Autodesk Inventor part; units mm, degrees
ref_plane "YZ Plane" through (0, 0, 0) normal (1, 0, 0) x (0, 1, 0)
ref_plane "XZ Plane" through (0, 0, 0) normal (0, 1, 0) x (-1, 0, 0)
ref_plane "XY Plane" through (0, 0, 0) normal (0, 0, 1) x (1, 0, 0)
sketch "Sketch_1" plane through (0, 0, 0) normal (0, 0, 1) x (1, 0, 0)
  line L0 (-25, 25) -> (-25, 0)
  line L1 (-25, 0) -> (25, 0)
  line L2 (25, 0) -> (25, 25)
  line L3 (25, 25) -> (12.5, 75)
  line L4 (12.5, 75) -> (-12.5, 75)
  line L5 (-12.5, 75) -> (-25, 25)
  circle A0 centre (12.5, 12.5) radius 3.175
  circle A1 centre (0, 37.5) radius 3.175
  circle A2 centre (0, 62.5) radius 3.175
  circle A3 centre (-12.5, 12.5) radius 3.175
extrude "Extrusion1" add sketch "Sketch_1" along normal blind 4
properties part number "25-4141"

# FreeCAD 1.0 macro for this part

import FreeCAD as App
import Part
import Sketcher
from FreeCAD import Vector
Q = App.Units.Quantity

doc = App.newDocument("Part")
body = doc.addObject("PartDesign::Body", "Body")

# Sketch on XY plane
sketch1 = body.newObject("Sketcher::SketchObject", "Sketch")
sketch1.AttachmentSupport = (doc.getObject("XY_Plane"), [""])
sketch1.MapMode = "FlatFace"
sketch1.addGeometry([
    Part.LineSegment(Vector(-12.5, 75, 0), Vector(-25, 25, 0)),  # 0
    Part.LineSegment(Vector(-25, 25, 0), Vector(-25, 0, 0)),  # 1
    Part.LineSegment(Vector(-25, 0, 0), Vector(25, 0, 0)),  # 2
    Part.LineSegment(Vector(25, 0, 0), Vector(25, 25, 0)),  # 3
    Part.LineSegment(Vector(25, 25, 0), Vector(12.5, 75, 0)),  # 4
    Part.LineSegment(Vector(12.5, 75, 0), Vector(-12.5, 75, 0)),  # 5
    Part.Circle(Vector(-12.5, 12.5, 0), Vector(0, 0, 1), 3.2),  # 6
    Part.Circle(Vector(12.5, 12.5, 0), Vector(0, 0, 1), 3.2),  # 7
    Part.Circle(Vector(0, 37.5, 0), Vector(0, 0, 1), 3.2),  # 8
    Part.Circle(Vector(0, 62.5, 0), Vector(0, 0, 1), 3.2),  # 9
], False)
sketch1.addConstraint([
    Sketcher.Constraint("Coincident", 0, 2, 1, 1),
    Sketcher.Constraint("Coincident", 1, 2, 2, 1),
    Sketcher.Constraint("Coincident", 2, 2, 3, 1),
    Sketcher.Constraint("Coincident", 3, 2, 4, 1),
    Sketcher.Constraint("Coincident", 4, 2, 5, 1),
    Sketcher.Constraint("Coincident", 5, 2, 0, 1),
    Sketcher.Constraint("Vertical", 1),
    Sketcher.Constraint("Horizontal", 2),
    Sketcher.Constraint("Vertical", 3),
    Sketcher.Constraint("Horizontal", 5),
    Sketcher.Constraint("Equal", 6, 7),
    Sketcher.Constraint("Equal", 7, 8),
    Sketcher.Constraint("Equal", 8, 9),
    Sketcher.Constraint("Symmetric", 1, 2, 2, 2, -1, 1),
    Sketcher.Constraint("Symmetric", 6, 3, 7, 3, -2),
    Sketcher.Constraint("PointOnObject", 8, 3, -2),
    Sketcher.Constraint("PointOnObject", 9, 3, -2),
    Sketcher.Constraint("Horizontal", 0, 2, 3, 2),
    Sketcher.Constraint("Vertical", 7, 3, 4, 2),
    Sketcher.Constraint("Vertical", 6, 3, 5, 2),
    Sketcher.Constraint("Equal", 5, 1),
    Sketcher.Constraint("Diameter", 6, Q("6.35 mm")),
    Sketcher.Constraint("DistanceX", 2, 1, 2, 2, Q("50 mm")),
    Sketcher.Constraint("DistanceX", 5, 2, 5, 1, Q("25 mm")),
    Sketcher.Constraint("DistanceY", -1, 1, 4, 2, Q("75 mm")),
    Sketcher.Constraint("DistanceY", 6, 3, 8, 3, Q("25 mm")),
    Sketcher.Constraint("DistanceY", 8, 3, 9, 3, Q("25 mm")),
    Sketcher.Constraint("DistanceY", -1, 1, 6, 3, Q("12.5 mm")),
])
pad1 = body.newObject("PartDesign::Pad", "Pad")
pad1.Profile = sketch1
pad1.Length = 4

doc.recompute()
